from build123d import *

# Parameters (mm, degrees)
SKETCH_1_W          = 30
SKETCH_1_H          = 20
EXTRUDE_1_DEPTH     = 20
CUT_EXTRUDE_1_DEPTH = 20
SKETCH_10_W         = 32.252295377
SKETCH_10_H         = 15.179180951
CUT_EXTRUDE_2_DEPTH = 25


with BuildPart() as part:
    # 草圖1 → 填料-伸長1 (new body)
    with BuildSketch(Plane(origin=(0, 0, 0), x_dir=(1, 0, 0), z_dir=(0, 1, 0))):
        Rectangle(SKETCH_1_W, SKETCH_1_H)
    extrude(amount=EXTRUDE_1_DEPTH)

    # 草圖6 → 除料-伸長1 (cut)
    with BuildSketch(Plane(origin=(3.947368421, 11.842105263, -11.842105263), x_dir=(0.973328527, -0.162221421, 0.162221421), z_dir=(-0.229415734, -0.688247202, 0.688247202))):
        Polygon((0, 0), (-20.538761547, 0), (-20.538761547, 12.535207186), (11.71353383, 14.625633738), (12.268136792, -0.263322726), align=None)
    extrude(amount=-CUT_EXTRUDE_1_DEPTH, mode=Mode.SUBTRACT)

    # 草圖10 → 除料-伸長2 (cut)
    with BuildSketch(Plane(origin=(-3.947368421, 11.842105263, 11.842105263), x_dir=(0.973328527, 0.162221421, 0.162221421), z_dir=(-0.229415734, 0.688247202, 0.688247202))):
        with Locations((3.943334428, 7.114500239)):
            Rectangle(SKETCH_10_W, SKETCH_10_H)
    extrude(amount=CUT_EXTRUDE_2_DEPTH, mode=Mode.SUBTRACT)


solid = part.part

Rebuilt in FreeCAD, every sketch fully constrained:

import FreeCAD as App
import Part
import Sketcher
from FreeCAD import Vector


def add_polygon(sketch, points):
    """Adds a closed chain of lines whose ends are joined by coincident constraints."""
    first, n = sketch.GeometryCount, len(points)
    for a, b in zip(points, points[1:] + points[:1]):
        sketch.addGeometry(Part.LineSegment(App.Vector(*a, 0), App.Vector(*b, 0)), False)
    for i in range(n):
        sketch.addConstraint(Sketcher.Constraint("Coincident", first + i, 2, first + (i + 1) % n, 1))

doc = App.newDocument("Part")
body = doc.addObject("PartDesign::Body", "Body")

sketch1 = doc.addObject("Sketcher::SketchObject", "Sketch")
body.addObject(sketch1)
sketch1.AttachmentSupport = (doc.XZ_Plane, [""])
sketch1.MapMode = "FlatFace"
add_polygon(sketch1, [(-15, -10), (-15, 10), (15, 10), (15, -10)])
sketch1.addConstraint([
    Sketcher.Constraint("Vertical", 0),
    Sketcher.Constraint("Horizontal", 1),
    Sketcher.Constraint("Vertical", 2),
    Sketcher.Constraint("Horizontal", 3),
    Sketcher.Constraint("Symmetric", 0, 2, 2, 2, -1, 1),
    Sketcher.Constraint("DistanceX", 1, 1, 1, 2, 30.0),
    Sketcher.Constraint("DistanceY", 0, 1, 0, 2, 20.0),
])
pad1 = doc.addObject("PartDesign::Pad", "Pad")
body.addObject(pad1)
pad1.Profile = sketch1
pad1.Length = 20
pad1.Reversed = True

sketch2 = doc.addObject("Sketcher::SketchObject", "Sketch001")
body.addObject(sketch2)
sketch2.Placement = App.Placement(Vector(3.947368, 11.842105, -11.842105), App.Rotation(Vector(0.973328527, -0.162221421, 0.162221421), Vector(0, 0.707106782, 0.707106782), Vector(-0.229415734, -0.688247202, 0.688247202), "ZXY"))
add_polygon(sketch2, [(-21, 0), (0, 0), (12, 0), (12, 15), (-21, 13)])
sketch2.addConstraint([
    Sketcher.Constraint("Horizontal", 0),
    Sketcher.Constraint("Vertical", 4),
    Sketcher.Constraint("Coincident", 0, 2, -1, 1),
    Sketcher.Constraint("DistanceX", 0, 1, 0, 2, 20.538762),
    Sketcher.Constraint("DistanceX", 3, 2, 1, 2, 32.806898),
    Sketcher.Constraint("Distance", 3, 32.31997),
    Sketcher.Constraint("DistanceY", 4, 2, 4, 1, 12.535207),
    Sketcher.Constraint("DistanceY", 1, 2, 3, 2, 12.79853),
    Sketcher.Constraint("Distance", 2, 14.899282),
])
pocket1 = doc.addObject("PartDesign::Pocket", "Pocket")
body.addObject(pocket1)
pocket1.Profile = sketch2
pocket1.Length = 20

sketch3 = doc.addObject("Sketcher::SketchObject", "Sketch002")
body.addObject(sketch3)
sketch3.Placement = App.Placement(Vector(-3.947368, 11.842105, 11.842105), App.Rotation(Vector(0.973328527, 0.162221421, 0.162221421), Vector(0, 0.707106782, -0.707106782), Vector(-0.229415734, 0.688247202, 0.688247202), "ZXY"))
add_polygon(sketch3, [(-12, 15), (-12, 0), (20, 0), (20, 15)])
sketch3.addConstraint([
    Sketcher.Constraint("Vertical", 0),
    Sketcher.Constraint("Horizontal", 1),
    Sketcher.Constraint("Vertical", 2),
    Sketcher.Constraint("Horizontal", 3),
    Sketcher.Constraint("DistanceY", 0, 2, 0, 1, 15.179181),
    Sketcher.Constraint("DistanceX", 1, 1, 1, 2, 32.252295),
    Sketcher.Constraint("DistanceY", 0, 2, -1, 1, 0.47509),
    Sketcher.Constraint("DistanceX", 0, 2, -1, 1, 12.182813),
])
pocket2 = doc.addObject("PartDesign::Pocket", "Pocket001")
body.addObject(pocket2)
pocket2.Profile = sketch3
pocket2.Length = 25
pocket2.Reversed = True

doc.recompute()
